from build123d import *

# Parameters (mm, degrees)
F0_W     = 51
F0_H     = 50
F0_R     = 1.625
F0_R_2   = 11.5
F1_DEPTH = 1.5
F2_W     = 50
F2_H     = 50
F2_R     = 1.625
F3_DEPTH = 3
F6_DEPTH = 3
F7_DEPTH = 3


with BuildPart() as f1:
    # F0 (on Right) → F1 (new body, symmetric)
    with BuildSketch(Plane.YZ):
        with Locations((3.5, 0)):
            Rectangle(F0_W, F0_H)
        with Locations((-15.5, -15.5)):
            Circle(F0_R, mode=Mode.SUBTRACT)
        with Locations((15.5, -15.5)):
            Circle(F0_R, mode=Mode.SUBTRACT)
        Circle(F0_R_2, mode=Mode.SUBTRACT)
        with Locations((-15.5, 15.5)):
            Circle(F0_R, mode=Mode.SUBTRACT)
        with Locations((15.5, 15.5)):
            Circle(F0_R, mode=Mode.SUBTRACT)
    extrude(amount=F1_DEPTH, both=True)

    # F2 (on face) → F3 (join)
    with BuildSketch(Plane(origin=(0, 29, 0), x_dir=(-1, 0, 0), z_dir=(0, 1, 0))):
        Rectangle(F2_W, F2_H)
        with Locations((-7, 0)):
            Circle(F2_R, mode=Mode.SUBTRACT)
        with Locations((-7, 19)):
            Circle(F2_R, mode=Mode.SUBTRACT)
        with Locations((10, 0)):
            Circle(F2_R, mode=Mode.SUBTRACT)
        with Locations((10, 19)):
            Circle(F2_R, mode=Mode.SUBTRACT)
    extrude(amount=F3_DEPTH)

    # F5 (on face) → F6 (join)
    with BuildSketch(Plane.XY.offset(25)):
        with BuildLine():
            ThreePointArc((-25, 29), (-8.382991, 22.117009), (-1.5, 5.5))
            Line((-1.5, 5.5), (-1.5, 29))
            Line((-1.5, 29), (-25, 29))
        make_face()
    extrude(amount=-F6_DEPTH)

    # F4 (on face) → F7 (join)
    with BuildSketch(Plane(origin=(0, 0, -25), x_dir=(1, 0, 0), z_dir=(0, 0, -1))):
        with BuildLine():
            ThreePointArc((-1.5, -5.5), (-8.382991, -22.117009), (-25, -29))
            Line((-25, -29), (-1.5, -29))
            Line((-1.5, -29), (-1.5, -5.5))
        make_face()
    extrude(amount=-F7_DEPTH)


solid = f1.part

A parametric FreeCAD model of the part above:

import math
import FreeCAD as App
import Part
import Sketcher

doc = App.newDocument("Part")
body = doc.addObject("PartDesign::Body", "Body")

# Sketch on YZ plane
sketch1 = body.newObject("Sketcher::SketchObject", "Sketch")
sketch1.AttachmentSupport = (doc.getObject("YZ_Plane"), [""])
sketch1.MapMode = "FlatFace"
sketch1.addGeometry([
    Part.LineSegment(App.Vector(-22, 25, 0), App.Vector(-22, -25, 0)),  # 0
    Part.LineSegment(App.Vector(-22, -25, 0), App.Vector(29, -25, 0)),  # 1
    Part.LineSegment(App.Vector(29, -25, 0), App.Vector(29, 25, 0)),  # 2
    Part.LineSegment(App.Vector(29, 25, 0), App.Vector(-22, 25, 0)),  # 3
    Part.Circle(App.Vector(-15.5, -15.5, 0), App.Vector(0, 0, 1), 1.6),  # 4
    Part.Circle(App.Vector(15.5, -15.5, 0), App.Vector(0, 0, 1), 1.6),  # 5
    Part.Circle(App.Vector(-15.5, 15.5, 0), App.Vector(0, 0, 1), 1.6),  # 6
    Part.Circle(App.Vector(0, 0, 0), App.Vector(0, 0, 1), 11.5),  # 7
    Part.Circle(App.Vector(15.5, 15.5, 0), App.Vector(0, 0, 1), 1.6),  # 8
], False)
sketch1.addConstraint([
    Sketcher.Constraint("Coincident", 0, 2, 1, 1),
    Sketcher.Constraint("Coincident", 1, 2, 2, 1),
    Sketcher.Constraint("Coincident", 2, 2, 3, 1),
    Sketcher.Constraint("Coincident", 3, 2, 0, 1),
    Sketcher.Constraint("Vertical", 0),
    Sketcher.Constraint("Horizontal", 1),
    Sketcher.Constraint("Vertical", 2),
    Sketcher.Constraint("Horizontal", 3),
    Sketcher.Constraint("Coincident", 7, 3, -1, 1),
    Sketcher.Constraint("Equal", 4, 5),
    Sketcher.Constraint("Equal", 5, 6),
    Sketcher.Constraint("Equal", 6, 8),
    Sketcher.Constraint("Symmetric", 5, 3, 6, 3, -1, 1),
    Sketcher.Constraint("Symmetric", 4, 3, 8, 3, -1, 1),
    Sketcher.Constraint("Symmetric", 4, 3, 5, 3, -2),
    Sketcher.Constraint("Diameter", 7, 23.0),
    Sketcher.Constraint("Diameter", 4, 3.25),
    Sketcher.Constraint("DistanceX", 1, 1, 1, 2, 51.0),
    Sketcher.Constraint("DistanceY", 0, 2, 0, 1, 50.0),
    Sketcher.Constraint("DistanceX", 0, 2, -1, 1, 22.0),
    Sketcher.Constraint("DistanceY", 0, 2, -1, 1, 25.0),
    Sketcher.Constraint("DistanceX", 4, 3, 5, 3, 31.0),
    Sketcher.Constraint("DistanceY", 4, 3, 6, 3, 31.0),
])
pad1 = body.newObject("PartDesign::Pad", "Pad")
pad1.Profile = sketch1
pad1.Length = 3
pad1.Midplane = True

# Sketch on XZ plane
sketch2 = body.newObject("Sketcher::SketchObject", "Sketch001")
sketch2.AttachmentSupport = (doc.getObject("XZ_Plane"), [""])
sketch2.MapMode = "FlatFace"
sketch2.AttachmentOffset = App.Placement(App.Vector(0, 0, -29), App.Rotation())
sketch2.addGeometry([
    Part.LineSegment(App.Vector(25, 25, 0), App.Vector(25, -25, 0)),  # 0
    Part.LineSegment(App.Vector(25, -25, 0), App.Vector(-25, -25, 0)),  # 1
    Part.LineSegment(App.Vector(-25, -25, 0), App.Vector(-25, 25, 0)),  # 2
    Part.LineSegment(App.Vector(-25, 25, 0), App.Vector(25, 25, 0)),  # 3
    Part.Circle(App.Vector(7, 0, 0), App.Vector(0, 0, 1), 1.6),  # 4
    Part.Circle(App.Vector(-10, 0, 0), App.Vector(0, 0, 1), 1.6),  # 5
    Part.Circle(App.Vector(7, 19, 0), App.Vector(0, 0, 1), 1.6),  # 6
    Part.Circle(App.Vector(-10, 19, 0), App.Vector(0, 0, 1), 1.6),  # 7
], False)
sketch2.addConstraint([
    Sketcher.Constraint("Coincident", 0, 2, 1, 1),
    Sketcher.Constraint("Coincident", 1, 2, 2, 1),
    Sketcher.Constraint("Coincident", 2, 2, 3, 1),
    Sketcher.Constraint("Coincident", 3, 2, 0, 1),
    Sketcher.Constraint("Vertical", 0),
    Sketcher.Constraint("Horizontal", 1),
    Sketcher.Constraint("Vertical", 2),
    Sketcher.Constraint("Horizontal", 3),
    Sketcher.Constraint("Equal", 4, 5),
    Sketcher.Constraint("Equal", 5, 6),
    Sketcher.Constraint("Equal", 6, 7),
    Sketcher.Constraint("Symmetric", 0, 2, 2, 2, -1, 1),
    Sketcher.Constraint("PointOnObject", 4, 3, -1),
    Sketcher.Constraint("PointOnObject", 5, 3, -1),
    Sketcher.Constraint("Horizontal", 6, 3, 7, 3),
    Sketcher.Constraint("Vertical", 4, 3, 6, 3),
    Sketcher.Constraint("Vertical", 5, 3, 7, 3),
    Sketcher.Constraint("Equal", 3, 0),
    Sketcher.Constraint("Diameter", 4, 3.25),
    Sketcher.Constraint("DistanceX", 1, 2, 1, 1, 50.0),
    Sketcher.Constraint("DistanceX", -1, 1, 4, 3, 7.0),
    Sketcher.Constraint("DistanceX", 5, 3, -1, 1, 10.0),
    Sketcher.Constraint("DistanceY", -1, 1, 6, 3, 19.0),
])
pad2 = body.newObject("PartDesign::Pad", "Pad001")
pad2.Profile = sketch2
pad2.Length = 3
pad2.Reversed = True

# Sketch on XY plane
sketch3 = body.newObject("Sketcher::SketchObject", "Sketch002")
sketch3.AttachmentSupport = (doc.getObject("XY_Plane"), [""])
sketch3.MapMode = "FlatFace"
sketch3.AttachmentOffset = App.Placement(App.Vector(0, 0, 25), App.Rotation())
sketch3.addGeometry([
    Part.ArcOfCircle(Part.Circle(App.Vector(-25, 5, 0), App.Vector(0, 0, 1), 24), math.radians(0), math.radians(90)),
    Part.LineSegment(App.Vector(-2, 6, 0), App.Vector(-2, 29, 0)),
    Part.LineSegment(App.Vector(-2, 29, 0), App.Vector(-25, 29, 0)),
], False)
sketch3.addConstraint([
    Sketcher.Constraint("Tangent", 0, 1, 1, 1),
    Sketcher.Constraint("Coincident", 1, 2, 2, 1),
    Sketcher.Constraint("Tangent", 2, 2, 0, 2),
    Sketcher.Constraint("Vertical", 1),
    Sketcher.Constraint("Horizontal", 2),
    Sketcher.Constraint("Radius", 0, 23.500001),
    Sketcher.Constraint("DistanceX", 0, 3, -1, 1, 25.000001),
    Sketcher.Constraint("DistanceY", -1, 1, 1, 2, 29.0),
])
pad3 = body.newObject("PartDesign::Pad", "Pad002")
pad3.Profile = sketch3
pad3.Length = 3
pad3.Reversed = True

# Sketch on XY plane
sketch4 = body.newObject("Sketcher::SketchObject", "Sketch003")
sketch4.AttachmentSupport = (doc.getObject("XY_Plane"), [""])
sketch4.MapMode = "FlatFace"
sketch4.AttachmentOffset = App.Placement(App.Vector(0, 0, -25), App.Rotation())
sketch4.addGeometry([
    Part.ArcOfCircle(Part.Circle(App.Vector(-25, 5, 0), App.Vector(0, 0, 1), 24), math.radians(0), math.radians(90)),
    Part.LineSegment(App.Vector(-25, 29, 0), App.Vector(-2, 29, 0)),
    Part.LineSegment(App.Vector(-2, 29, 0), App.Vector(-2, 6, 0)),
], False)
sketch4.addConstraint([
    Sketcher.Constraint("Tangent", 0, 2, 1, 1),
    Sketcher.Constraint("Coincident", 1, 2, 2, 1),
    Sketcher.Constraint("Tangent", 2, 2, 0, 1),
    Sketcher.Constraint("Horizontal", 1),
    Sketcher.Constraint("Vertical", 2),
    Sketcher.Constraint("Radius", 0, 23.500001),
    Sketcher.Constraint("DistanceX", 0, 3, -1, 1, 25.000001),
    Sketcher.Constraint("DistanceY", -1, 1, 0, 2, 29.0),
])
pad4 = body.newObject("PartDesign::Pad", "Pad003")
pad4.Profile = sketch4
pad4.Length = 3

doc.recompute()
